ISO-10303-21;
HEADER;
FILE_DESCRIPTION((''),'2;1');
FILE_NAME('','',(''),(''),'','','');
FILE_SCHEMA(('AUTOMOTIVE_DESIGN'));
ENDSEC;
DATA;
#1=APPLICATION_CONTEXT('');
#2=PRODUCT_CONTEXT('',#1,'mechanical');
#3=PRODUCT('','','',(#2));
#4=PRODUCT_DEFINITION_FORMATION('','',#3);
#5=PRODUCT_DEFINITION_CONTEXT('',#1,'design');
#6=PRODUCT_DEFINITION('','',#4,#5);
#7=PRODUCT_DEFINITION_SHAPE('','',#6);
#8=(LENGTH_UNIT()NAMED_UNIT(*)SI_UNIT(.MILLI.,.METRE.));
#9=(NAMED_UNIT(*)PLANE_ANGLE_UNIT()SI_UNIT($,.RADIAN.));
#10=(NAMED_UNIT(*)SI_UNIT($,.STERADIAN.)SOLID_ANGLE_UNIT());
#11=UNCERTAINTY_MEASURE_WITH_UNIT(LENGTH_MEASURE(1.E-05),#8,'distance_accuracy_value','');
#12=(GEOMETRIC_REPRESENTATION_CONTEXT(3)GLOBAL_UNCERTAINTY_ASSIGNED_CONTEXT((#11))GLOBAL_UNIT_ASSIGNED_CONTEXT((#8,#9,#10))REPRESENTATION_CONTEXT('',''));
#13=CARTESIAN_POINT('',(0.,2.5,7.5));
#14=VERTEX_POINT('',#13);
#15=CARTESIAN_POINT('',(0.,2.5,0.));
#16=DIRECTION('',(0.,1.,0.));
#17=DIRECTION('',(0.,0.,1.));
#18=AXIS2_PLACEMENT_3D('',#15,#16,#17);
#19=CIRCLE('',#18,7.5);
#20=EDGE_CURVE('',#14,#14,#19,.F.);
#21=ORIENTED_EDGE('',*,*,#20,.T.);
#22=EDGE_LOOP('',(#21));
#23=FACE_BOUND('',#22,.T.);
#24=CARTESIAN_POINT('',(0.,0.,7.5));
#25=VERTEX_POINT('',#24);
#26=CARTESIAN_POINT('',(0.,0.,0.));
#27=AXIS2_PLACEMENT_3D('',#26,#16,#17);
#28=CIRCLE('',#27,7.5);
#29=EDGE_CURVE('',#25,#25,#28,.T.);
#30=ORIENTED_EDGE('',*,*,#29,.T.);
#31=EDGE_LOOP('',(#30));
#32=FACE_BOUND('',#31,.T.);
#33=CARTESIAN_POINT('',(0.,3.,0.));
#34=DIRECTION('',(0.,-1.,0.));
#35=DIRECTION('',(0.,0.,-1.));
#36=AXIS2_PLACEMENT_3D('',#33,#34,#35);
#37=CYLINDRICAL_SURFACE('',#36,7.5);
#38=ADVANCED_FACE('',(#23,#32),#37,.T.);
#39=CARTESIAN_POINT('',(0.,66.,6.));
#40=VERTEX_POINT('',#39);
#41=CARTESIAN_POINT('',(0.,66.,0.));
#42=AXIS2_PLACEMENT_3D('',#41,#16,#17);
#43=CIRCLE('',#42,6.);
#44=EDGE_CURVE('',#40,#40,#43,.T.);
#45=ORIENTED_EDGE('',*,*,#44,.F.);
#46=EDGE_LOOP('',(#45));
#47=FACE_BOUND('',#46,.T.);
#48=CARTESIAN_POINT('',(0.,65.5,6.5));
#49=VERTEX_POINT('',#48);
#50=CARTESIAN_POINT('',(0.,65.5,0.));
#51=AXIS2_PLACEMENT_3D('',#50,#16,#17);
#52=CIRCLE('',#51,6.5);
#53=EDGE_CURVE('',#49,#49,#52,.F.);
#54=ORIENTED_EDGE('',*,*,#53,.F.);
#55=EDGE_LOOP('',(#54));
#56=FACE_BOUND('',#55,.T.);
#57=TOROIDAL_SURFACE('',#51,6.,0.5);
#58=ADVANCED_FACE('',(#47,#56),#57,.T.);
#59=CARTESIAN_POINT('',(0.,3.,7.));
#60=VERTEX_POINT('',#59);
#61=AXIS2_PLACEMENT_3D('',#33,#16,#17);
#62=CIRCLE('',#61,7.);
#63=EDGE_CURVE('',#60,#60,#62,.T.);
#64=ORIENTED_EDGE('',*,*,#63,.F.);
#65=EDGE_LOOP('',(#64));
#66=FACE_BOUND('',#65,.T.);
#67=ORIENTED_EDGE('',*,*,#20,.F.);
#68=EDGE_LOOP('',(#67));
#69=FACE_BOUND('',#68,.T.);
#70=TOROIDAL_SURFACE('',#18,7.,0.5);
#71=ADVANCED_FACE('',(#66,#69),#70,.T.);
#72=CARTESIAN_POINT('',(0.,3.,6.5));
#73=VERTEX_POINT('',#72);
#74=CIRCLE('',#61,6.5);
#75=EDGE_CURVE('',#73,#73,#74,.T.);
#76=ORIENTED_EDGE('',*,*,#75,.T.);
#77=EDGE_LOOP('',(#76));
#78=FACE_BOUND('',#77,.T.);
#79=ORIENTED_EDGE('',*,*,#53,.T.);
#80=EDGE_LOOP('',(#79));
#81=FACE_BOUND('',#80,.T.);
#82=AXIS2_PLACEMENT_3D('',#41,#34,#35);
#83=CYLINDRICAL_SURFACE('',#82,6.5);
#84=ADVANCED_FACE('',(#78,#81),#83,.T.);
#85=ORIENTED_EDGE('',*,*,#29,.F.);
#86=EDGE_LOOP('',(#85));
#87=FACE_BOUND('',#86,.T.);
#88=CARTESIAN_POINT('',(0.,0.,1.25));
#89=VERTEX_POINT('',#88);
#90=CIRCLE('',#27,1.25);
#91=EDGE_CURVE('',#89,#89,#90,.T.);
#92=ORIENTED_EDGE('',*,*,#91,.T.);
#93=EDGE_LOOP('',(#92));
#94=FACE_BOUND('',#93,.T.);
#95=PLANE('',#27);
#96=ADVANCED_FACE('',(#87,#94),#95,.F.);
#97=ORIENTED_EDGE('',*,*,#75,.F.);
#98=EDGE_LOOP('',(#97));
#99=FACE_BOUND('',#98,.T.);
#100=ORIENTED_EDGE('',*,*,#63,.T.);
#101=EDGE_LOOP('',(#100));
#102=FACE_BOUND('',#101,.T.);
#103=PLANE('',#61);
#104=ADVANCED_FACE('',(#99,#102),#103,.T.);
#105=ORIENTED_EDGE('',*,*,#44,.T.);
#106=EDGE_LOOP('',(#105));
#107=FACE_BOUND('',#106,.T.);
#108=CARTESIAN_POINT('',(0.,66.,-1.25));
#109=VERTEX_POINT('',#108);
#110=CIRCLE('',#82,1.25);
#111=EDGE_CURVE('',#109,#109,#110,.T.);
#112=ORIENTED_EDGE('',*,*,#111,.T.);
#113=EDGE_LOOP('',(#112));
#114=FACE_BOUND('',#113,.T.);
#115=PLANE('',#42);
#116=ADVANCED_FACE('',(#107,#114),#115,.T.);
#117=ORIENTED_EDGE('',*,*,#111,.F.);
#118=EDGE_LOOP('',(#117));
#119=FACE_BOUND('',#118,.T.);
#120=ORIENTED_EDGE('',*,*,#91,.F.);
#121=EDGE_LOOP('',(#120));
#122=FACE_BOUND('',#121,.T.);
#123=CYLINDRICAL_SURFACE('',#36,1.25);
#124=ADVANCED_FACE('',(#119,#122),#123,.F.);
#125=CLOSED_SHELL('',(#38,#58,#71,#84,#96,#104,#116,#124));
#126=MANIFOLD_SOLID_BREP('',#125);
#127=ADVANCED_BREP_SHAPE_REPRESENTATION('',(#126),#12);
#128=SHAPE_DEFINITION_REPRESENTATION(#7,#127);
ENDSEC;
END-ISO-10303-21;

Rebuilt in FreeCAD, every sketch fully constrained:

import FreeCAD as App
import Part
import Sketcher


def edges_at(feature, points):
    """Names of the edges that pass closest to the given points."""
    edges = feature.Shape.Edges
    near = lambda p: min(range(len(edges)), key=lambda i: edges[i].distToShape(Part.Vertex(*p))[0])
    return sorted({f"Edge{near(p) + 1}" for p in points})

doc = App.newDocument("Part")
params = doc.addObject("Spreadsheet::Sheet", "Params")
for row, (alias, value) in enumerate([
    ("sketch1_diameter", "15 mm"),
    ("sketch1_diameter2", "2.5 mm"),
    ("pad1_length", "3 mm"),
    ("sketch2_diameter", "13 mm"),
    ("pad2_length", "63 mm"),
    ("sketch3_diameter", "2.5 mm"),
    ("fillet_radius", "0.5 mm"),
], start=1):
    params.set(f"A{row}", alias)
    params.set(f"B{row}", "=" + value)
    params.setAlias(f"B{row}", alias)

body = doc.addObject("PartDesign::Body", "Body")

# Sketch on XZ plane
sketch1 = body.newObject("Sketcher::SketchObject", "Sketch")
sketch1.AttachmentSupport = (doc.getObject("XZ_Plane"), [""])
sketch1.MapMode = "FlatFace"
sketch1.addGeometry(Part.Circle(App.Vector(0, 0, 0), App.Vector(0, 0, 1), 7.5), False)
sketch1.addGeometry(Part.Circle(App.Vector(0, 0, 0), App.Vector(0, 0, 1), 1.2), False)
sketch1.addConstraint(Sketcher.Constraint("Coincident", 0, 3, -1, 1))
sketch1.addConstraint(Sketcher.Constraint("Coincident", 1, 3, -1, 1))
sketch1.addConstraint(Sketcher.Constraint("Diameter", 0, 15.0))
sketch1.addConstraint(Sketcher.Constraint("Diameter", 1, 2.5))
sketch1.setExpression("Constraints[2]", "Params.sketch1_diameter")
sketch1.setExpression("Constraints[3]", "Params.sketch1_diameter2")
pad1 = body.newObject("PartDesign::Pad", "Pad")
pad1.Profile = sketch1
pad1.setExpression("Length", "Params.pad1_length")
pad1.Reversed = True

# Sketch on XZ plane
sketch2 = body.newObject("Sketcher::SketchObject", "Sketch001")
sketch2.AttachmentSupport = (doc.getObject("XZ_Plane"), [""])
sketch2.MapMode = "FlatFace"
sketch2.AttachmentOffset = App.Placement(App.Vector(0, 0, -3), App.Rotation())
sketch2.addGeometry(Part.Circle(App.Vector(0, 0, 0), App.Vector(0, 0, 1), 6), False)
sketch2.addConstraint(Sketcher.Constraint("Coincident", 0, 3, -1, 1))
sketch2.addConstraint(Sketcher.Constraint("Diameter", 0, 13.0))
sketch2.setExpression("Constraints[1]", "Params.sketch2_diameter")
pad2 = body.newObject("PartDesign::Pad", "Pad001")
pad2.Profile = sketch2
pad2.setExpression("Length", "Params.pad2_length")
pad2.Reversed = True

# Sketch on XZ plane
sketch3 = body.newObject("Sketcher::SketchObject", "Sketch002")
sketch3.AttachmentSupport = (doc.getObject("XZ_Plane"), [""])
sketch3.MapMode = "FlatFace"
sketch3.AttachmentOffset = App.Placement(App.Vector(0, 0, -3), App.Rotation())
sketch3.addGeometry(Part.Circle(App.Vector(0, 0, 0), App.Vector(0, 0, 1), 1.2), False)
sketch3.addConstraint(Sketcher.Constraint("Coincident", 0, 3, -1, 1))
sketch3.addConstraint(Sketcher.Constraint("Diameter", 0, 2.5))
sketch3.setExpression("Constraints[1]", "Params.sketch3_diameter")
pocket1 = body.newObject("PartDesign::Pocket", "Pocket")
pocket1.Profile = sketch3
pocket1.Type = "ThroughAll"
doc.recompute()

fillet = body.newObject("PartDesign::Fillet", "Fillet")
fillet.Base = (pocket1, edges_at(pocket1, [(0, 66, -6.5), (0, 3, -7.5)]))
fillet.setExpression("Radius", "Params.fillet_radius")

doc.recompute()
